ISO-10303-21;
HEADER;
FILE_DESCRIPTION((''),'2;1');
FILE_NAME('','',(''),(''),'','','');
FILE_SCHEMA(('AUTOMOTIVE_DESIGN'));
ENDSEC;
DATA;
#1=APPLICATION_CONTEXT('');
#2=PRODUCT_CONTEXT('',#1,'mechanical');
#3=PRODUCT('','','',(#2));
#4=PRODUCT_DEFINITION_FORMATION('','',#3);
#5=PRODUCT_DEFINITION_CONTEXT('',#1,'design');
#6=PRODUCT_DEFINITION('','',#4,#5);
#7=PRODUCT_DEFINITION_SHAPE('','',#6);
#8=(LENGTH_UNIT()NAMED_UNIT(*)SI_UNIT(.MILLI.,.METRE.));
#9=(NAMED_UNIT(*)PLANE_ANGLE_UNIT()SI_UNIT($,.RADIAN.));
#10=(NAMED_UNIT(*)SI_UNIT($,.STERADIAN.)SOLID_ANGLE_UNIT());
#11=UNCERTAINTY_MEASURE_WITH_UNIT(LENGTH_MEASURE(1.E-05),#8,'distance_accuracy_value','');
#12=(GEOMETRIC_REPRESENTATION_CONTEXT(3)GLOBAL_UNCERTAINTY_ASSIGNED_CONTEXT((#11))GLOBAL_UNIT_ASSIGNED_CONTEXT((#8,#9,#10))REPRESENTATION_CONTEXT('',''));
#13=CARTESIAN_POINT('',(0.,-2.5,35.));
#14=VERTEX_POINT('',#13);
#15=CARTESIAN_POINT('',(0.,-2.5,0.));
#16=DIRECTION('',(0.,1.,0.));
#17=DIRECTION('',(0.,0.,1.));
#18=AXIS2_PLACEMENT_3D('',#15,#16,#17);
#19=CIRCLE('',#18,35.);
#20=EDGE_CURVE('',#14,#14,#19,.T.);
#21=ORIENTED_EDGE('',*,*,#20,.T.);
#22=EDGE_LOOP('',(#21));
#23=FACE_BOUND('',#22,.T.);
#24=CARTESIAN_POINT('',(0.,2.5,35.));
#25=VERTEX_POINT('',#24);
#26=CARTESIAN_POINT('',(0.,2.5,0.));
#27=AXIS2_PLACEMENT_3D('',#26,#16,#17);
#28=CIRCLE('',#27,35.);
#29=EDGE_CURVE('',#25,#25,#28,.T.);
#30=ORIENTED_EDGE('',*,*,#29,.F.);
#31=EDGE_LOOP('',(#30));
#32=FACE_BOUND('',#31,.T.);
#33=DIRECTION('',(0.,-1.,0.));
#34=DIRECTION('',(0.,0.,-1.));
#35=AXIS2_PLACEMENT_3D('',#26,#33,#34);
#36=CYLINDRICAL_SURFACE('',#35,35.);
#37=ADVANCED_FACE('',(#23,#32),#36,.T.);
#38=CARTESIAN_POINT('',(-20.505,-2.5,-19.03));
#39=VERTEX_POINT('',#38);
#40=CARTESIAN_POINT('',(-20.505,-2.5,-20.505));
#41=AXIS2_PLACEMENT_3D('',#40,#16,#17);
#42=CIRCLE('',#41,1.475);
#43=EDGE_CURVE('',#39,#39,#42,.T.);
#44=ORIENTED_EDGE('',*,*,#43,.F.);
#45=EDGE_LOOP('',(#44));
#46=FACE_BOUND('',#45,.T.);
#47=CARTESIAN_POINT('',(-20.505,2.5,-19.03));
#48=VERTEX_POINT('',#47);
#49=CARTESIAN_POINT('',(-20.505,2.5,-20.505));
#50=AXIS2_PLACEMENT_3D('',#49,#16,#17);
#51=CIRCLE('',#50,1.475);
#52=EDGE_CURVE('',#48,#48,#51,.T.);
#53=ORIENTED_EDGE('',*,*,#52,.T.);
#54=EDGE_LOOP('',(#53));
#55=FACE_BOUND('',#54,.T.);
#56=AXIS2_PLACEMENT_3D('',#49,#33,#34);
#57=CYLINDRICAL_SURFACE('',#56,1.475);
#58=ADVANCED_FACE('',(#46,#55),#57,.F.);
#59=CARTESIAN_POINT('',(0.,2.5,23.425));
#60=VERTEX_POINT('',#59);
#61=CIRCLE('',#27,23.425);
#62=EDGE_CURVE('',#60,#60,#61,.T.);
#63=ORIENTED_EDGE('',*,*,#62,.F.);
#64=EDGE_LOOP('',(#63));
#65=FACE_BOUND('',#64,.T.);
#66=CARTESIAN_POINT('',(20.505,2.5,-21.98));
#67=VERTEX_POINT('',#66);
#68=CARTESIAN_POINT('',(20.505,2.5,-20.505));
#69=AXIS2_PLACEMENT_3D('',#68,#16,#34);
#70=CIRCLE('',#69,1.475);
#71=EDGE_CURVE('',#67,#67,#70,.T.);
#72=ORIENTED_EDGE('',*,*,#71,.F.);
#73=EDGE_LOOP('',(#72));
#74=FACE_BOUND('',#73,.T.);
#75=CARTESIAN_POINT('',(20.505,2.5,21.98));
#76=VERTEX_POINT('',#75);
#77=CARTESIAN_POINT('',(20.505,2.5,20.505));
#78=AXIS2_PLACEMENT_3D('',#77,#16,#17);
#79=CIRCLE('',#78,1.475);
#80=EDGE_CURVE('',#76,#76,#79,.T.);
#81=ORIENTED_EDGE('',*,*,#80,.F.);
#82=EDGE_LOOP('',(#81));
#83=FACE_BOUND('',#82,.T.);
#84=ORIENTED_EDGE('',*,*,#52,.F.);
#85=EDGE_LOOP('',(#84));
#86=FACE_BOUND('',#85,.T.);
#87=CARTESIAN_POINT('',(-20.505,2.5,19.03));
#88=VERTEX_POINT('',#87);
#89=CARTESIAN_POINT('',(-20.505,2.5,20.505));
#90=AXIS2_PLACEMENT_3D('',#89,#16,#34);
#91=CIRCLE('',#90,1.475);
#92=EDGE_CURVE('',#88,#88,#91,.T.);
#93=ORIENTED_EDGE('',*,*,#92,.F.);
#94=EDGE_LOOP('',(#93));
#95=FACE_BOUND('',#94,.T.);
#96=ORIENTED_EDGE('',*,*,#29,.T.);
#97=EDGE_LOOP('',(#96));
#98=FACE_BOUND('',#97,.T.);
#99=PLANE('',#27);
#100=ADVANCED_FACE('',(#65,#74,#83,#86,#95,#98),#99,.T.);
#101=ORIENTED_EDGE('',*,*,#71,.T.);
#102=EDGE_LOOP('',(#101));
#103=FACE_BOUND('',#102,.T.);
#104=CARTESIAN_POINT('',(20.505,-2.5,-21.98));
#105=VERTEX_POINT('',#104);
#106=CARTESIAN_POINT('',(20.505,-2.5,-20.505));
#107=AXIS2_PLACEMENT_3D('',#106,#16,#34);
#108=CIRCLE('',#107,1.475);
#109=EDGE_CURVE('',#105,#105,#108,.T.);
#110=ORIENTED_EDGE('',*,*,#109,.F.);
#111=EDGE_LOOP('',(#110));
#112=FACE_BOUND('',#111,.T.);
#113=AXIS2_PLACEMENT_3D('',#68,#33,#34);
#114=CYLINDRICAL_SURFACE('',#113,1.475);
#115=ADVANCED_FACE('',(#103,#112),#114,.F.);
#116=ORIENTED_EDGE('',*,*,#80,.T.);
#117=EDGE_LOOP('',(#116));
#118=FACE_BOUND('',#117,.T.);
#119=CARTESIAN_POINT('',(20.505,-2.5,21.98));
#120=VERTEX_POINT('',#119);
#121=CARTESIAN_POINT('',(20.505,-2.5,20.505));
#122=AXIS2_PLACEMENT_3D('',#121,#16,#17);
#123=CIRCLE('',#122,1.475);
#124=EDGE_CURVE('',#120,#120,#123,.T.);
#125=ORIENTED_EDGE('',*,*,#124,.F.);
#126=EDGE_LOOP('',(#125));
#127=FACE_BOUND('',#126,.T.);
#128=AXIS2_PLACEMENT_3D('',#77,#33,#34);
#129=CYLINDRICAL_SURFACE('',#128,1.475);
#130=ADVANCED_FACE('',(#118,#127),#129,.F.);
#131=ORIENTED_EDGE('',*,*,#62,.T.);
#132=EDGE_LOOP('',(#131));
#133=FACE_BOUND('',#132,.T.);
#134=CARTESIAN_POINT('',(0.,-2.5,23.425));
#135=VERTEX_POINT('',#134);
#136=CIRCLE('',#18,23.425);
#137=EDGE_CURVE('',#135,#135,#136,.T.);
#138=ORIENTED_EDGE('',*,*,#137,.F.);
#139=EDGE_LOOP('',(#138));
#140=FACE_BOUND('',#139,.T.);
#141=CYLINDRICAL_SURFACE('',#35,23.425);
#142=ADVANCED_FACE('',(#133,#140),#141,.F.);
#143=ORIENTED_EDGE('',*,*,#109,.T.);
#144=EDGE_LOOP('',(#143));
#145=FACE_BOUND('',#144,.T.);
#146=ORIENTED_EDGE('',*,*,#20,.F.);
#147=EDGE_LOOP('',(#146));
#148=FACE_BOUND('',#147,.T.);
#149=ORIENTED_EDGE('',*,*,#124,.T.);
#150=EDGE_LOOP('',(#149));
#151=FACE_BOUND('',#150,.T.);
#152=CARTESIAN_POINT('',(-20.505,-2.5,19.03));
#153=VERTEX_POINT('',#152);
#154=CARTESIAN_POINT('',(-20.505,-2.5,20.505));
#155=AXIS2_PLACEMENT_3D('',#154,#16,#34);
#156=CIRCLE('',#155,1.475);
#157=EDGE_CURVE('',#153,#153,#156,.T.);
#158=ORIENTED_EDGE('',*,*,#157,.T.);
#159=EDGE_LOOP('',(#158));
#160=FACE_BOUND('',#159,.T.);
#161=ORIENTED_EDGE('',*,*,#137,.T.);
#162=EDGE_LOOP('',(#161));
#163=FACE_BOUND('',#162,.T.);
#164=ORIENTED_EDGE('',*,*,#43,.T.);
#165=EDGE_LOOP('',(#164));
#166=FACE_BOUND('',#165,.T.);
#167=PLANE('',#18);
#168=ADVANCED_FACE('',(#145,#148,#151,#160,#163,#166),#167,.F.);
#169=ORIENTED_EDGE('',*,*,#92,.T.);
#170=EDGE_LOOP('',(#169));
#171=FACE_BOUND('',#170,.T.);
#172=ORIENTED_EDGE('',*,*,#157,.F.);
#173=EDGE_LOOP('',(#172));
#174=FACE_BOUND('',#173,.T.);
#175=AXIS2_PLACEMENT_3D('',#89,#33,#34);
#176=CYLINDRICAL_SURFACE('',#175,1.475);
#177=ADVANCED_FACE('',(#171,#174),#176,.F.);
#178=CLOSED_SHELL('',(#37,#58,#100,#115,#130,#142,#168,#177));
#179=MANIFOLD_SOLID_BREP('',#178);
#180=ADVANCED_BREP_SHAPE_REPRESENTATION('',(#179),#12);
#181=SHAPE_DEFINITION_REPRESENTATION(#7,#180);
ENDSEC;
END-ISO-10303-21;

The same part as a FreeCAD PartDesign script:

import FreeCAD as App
import Part
import Sketcher

doc = App.newDocument("Part")
body = doc.addObject("PartDesign::Body", "Body")

sketch1 = body.newObject("Sketcher::SketchObject", "Sketch")
sketch1.AttachmentSupport = (doc.getObject("XZ_Plane"), [""])
sketch1.MapMode = "FlatFace"
sketch1.addGeometry(Part.Circle(App.Vector(0, 0, 0), App.Vector(0, 0, 1), 35), False)
sketch1.addGeometry(Part.Circle(App.Vector(-20.5, -20.5, 0), App.Vector(0, 0, 1), 1.5), False)
sketch1.addGeometry(Part.Circle(App.Vector(-20.5, 20.5, 0), App.Vector(0, 0, 1), 1.5), False)
sketch1.addGeometry(Part.Circle(App.Vector(20.5, -20.5, 0), App.Vector(0, 0, 1), 1.5), False)
sketch1.addGeometry(Part.Circle(App.Vector(0, 0, 0), App.Vector(0, 0, 1), 23.4), False)
sketch1.addGeometry(Part.Circle(App.Vector(20.5, 20.5, 0), App.Vector(0, 0, 1), 1.5), False)
sketch1.addConstraint(Sketcher.Constraint("Coincident", 0, 3, -1, 1))
sketch1.addConstraint(Sketcher.Constraint("Coincident", 4, 3, -1, 1))
sketch1.addConstraint(Sketcher.Constraint("Equal", 1, 2))
sketch1.addConstraint(Sketcher.Constraint("Equal", 2, 3))
sketch1.addConstraint(Sketcher.Constraint("Equal", 3, 5))
sketch1.addConstraint(Sketcher.Constraint("Symmetric", 2, 3, 3, 3, -1, 1))
sketch1.addConstraint(Sketcher.Constraint("Symmetric", 1, 3, 5, 3, -1, 1))
sketch1.addConstraint(Sketcher.Constraint("Symmetric", 1, 3, 3, 3, -2))
sketch1.addConstraint(Sketcher.Constraint("Diameter", 0, 70.0))
sketch1.addConstraint(Sketcher.Constraint("Diameter", 1, 2.95))
sketch1.addConstraint(Sketcher.Constraint("Diameter", 4, 46.85))
sketch1.addConstraint(Sketcher.Constraint("DistanceY", 1, 3, 2, 3, 41.01))
sketch1.addConstraint(Sketcher.Constraint("DistanceX", 1, 3, 3, 3, 41.01))
pad1 = body.newObject("PartDesign::Pad", "Pad")
pad1.Profile = sketch1
pad1.Length = 5
pad1.Midplane = True

doc.recompute()
